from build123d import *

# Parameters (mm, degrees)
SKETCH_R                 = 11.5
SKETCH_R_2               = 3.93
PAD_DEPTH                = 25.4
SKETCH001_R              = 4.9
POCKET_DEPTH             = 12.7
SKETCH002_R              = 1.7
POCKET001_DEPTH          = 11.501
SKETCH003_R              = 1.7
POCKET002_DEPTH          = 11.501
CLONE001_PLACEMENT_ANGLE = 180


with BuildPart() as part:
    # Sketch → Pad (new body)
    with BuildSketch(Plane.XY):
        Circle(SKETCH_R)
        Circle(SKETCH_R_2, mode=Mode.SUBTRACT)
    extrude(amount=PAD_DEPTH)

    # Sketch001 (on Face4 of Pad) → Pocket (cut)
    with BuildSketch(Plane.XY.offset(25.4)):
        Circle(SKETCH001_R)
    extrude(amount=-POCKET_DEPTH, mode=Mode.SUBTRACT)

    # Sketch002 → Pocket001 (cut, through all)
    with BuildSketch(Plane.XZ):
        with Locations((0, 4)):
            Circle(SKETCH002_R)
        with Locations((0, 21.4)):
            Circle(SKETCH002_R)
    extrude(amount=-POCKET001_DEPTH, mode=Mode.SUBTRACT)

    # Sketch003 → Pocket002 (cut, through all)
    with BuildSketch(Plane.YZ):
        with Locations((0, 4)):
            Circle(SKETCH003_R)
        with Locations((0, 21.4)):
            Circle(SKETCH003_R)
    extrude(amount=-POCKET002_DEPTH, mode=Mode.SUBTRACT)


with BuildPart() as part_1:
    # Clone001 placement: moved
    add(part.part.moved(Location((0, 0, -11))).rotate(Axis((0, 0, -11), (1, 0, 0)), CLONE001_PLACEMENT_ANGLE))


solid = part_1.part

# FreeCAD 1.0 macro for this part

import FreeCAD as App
import Part
import Sketcher

V = App.Vector
Q = App.Units.Quantity

doc = App.newDocument("Part")
body = doc.addObject("PartDesign::Body", "Body")

sketch1 = body.newObject("Sketcher::SketchObject", "Sketch")
sketch1.AttachmentSupport = (doc.getObject("XY_Plane"), [""])
sketch1.MapMode = "FlatFace"
sketch1.addGeometry([
    Part.Circle(V(0, 0, 0), V(0, 0, 1), 11.5),
    Part.Circle(V(0, 0, 0), V(0, 0, 1), 3.9),
], False)
sketch1.addConstraint([
    Sketcher.Constraint("Coincident", 0, 3, -1, 1),
    Sketcher.Constraint("Coincident", 1, 3, -1, 1),
    Sketcher.Constraint("Diameter", 0, Q("23 mm")),
    Sketcher.Constraint("Diameter", 1, Q("7.86 mm")),
])
pad1 = body.newObject("PartDesign::Pad", "Pad")
pad1.Profile = sketch1
pad1.Length = 25.4

sketch2 = body.newObject("Sketcher::SketchObject", "Sketch001")
sketch2.AttachmentSupport = (doc.getObject("XY_Plane"), [""])
sketch2.MapMode = "FlatFace"
sketch2.AttachmentOffset = App.Placement(V(0, 0, 25.4), App.Rotation())
sketch2.addGeometry(Part.Circle(V(0, 0, 0), V(0, 0, 1), 4.9), False)
sketch2.addConstraint([
    Sketcher.Constraint("Coincident", 0, 3, -1, 1),
    Sketcher.Constraint("Diameter", 0, Q("9.8 mm")),
])
pocket1 = body.newObject("PartDesign::Pocket", "Pocket")
pocket1.Profile = sketch2
pocket1.Length = 12.7

sketch3 = body.newObject("Sketcher::SketchObject", "Sketch002")
sketch3.AttachmentSupport = (doc.getObject("XZ_Plane"), [""])
sketch3.MapMode = "FlatFace"
sketch3.addGeometry([
    Part.Circle(V(0, 4, 0), V(0, 0, 1), 1.7),
    Part.Circle(V(0, 21.4, 0), V(0, 0, 1), 1.7),
], False)
sketch3.addConstraint([
    Sketcher.Constraint("Equal", 0, 1),
    Sketcher.Constraint("PointOnObject", 0, 3, -2),
    Sketcher.Constraint("PointOnObject", 1, 3, -2),
    Sketcher.Constraint("Diameter", 0, Q("3.4 mm")),
    Sketcher.Constraint("DistanceY", -1, 1, 0, 3, Q("4 mm")),
    Sketcher.Constraint("DistanceY", -1, 1, 1, 3, Q("21.4 mm")),
])
pocket2 = body.newObject("PartDesign::Pocket", "Pocket001")
pocket2.Profile = sketch3
pocket2.Type = "ThroughAll"

sketch4 = body.newObject("Sketcher::SketchObject", "Sketch003")
sketch4.AttachmentSupport = (doc.getObject("YZ_Plane"), [""])
sketch4.MapMode = "FlatFace"
sketch4.addGeometry([
    Part.Circle(V(0, 4, 0), V(0, 0, 1), 1.7),
    Part.Circle(V(0, 21.4, 0), V(0, 0, 1), 1.7),
], False)
sketch4.addConstraint([
    Sketcher.Constraint("Equal", 0, 1),
    Sketcher.Constraint("PointOnObject", 0, 3, -2),
    Sketcher.Constraint("PointOnObject", 1, 3, -2),
    Sketcher.Constraint("Diameter", 0, Q("3.4 mm")),
    Sketcher.Constraint("DistanceY", -1, 1, 0, 3, Q("4 mm")),
    Sketcher.Constraint("DistanceY", -1, 1, 1, 3, Q("21.4 mm")),
])
pocket3 = body.newObject("PartDesign::Pocket", "Pocket002")
pocket3.Profile = sketch4
pocket3.Type = "ThroughAll"
body2 = doc.addObject("PartDesign::Body", "Body001")
doc.recompute()

body.Placement = App.Placement(V(0, 0, -11), App.Rotation(V(1, 0, 0), 180))
boolean = body2.newObject("PartDesign::Boolean", "Boolean")
boolean.Type = "Fuse"
boolean.addObjects([body])

doc.recompute()
